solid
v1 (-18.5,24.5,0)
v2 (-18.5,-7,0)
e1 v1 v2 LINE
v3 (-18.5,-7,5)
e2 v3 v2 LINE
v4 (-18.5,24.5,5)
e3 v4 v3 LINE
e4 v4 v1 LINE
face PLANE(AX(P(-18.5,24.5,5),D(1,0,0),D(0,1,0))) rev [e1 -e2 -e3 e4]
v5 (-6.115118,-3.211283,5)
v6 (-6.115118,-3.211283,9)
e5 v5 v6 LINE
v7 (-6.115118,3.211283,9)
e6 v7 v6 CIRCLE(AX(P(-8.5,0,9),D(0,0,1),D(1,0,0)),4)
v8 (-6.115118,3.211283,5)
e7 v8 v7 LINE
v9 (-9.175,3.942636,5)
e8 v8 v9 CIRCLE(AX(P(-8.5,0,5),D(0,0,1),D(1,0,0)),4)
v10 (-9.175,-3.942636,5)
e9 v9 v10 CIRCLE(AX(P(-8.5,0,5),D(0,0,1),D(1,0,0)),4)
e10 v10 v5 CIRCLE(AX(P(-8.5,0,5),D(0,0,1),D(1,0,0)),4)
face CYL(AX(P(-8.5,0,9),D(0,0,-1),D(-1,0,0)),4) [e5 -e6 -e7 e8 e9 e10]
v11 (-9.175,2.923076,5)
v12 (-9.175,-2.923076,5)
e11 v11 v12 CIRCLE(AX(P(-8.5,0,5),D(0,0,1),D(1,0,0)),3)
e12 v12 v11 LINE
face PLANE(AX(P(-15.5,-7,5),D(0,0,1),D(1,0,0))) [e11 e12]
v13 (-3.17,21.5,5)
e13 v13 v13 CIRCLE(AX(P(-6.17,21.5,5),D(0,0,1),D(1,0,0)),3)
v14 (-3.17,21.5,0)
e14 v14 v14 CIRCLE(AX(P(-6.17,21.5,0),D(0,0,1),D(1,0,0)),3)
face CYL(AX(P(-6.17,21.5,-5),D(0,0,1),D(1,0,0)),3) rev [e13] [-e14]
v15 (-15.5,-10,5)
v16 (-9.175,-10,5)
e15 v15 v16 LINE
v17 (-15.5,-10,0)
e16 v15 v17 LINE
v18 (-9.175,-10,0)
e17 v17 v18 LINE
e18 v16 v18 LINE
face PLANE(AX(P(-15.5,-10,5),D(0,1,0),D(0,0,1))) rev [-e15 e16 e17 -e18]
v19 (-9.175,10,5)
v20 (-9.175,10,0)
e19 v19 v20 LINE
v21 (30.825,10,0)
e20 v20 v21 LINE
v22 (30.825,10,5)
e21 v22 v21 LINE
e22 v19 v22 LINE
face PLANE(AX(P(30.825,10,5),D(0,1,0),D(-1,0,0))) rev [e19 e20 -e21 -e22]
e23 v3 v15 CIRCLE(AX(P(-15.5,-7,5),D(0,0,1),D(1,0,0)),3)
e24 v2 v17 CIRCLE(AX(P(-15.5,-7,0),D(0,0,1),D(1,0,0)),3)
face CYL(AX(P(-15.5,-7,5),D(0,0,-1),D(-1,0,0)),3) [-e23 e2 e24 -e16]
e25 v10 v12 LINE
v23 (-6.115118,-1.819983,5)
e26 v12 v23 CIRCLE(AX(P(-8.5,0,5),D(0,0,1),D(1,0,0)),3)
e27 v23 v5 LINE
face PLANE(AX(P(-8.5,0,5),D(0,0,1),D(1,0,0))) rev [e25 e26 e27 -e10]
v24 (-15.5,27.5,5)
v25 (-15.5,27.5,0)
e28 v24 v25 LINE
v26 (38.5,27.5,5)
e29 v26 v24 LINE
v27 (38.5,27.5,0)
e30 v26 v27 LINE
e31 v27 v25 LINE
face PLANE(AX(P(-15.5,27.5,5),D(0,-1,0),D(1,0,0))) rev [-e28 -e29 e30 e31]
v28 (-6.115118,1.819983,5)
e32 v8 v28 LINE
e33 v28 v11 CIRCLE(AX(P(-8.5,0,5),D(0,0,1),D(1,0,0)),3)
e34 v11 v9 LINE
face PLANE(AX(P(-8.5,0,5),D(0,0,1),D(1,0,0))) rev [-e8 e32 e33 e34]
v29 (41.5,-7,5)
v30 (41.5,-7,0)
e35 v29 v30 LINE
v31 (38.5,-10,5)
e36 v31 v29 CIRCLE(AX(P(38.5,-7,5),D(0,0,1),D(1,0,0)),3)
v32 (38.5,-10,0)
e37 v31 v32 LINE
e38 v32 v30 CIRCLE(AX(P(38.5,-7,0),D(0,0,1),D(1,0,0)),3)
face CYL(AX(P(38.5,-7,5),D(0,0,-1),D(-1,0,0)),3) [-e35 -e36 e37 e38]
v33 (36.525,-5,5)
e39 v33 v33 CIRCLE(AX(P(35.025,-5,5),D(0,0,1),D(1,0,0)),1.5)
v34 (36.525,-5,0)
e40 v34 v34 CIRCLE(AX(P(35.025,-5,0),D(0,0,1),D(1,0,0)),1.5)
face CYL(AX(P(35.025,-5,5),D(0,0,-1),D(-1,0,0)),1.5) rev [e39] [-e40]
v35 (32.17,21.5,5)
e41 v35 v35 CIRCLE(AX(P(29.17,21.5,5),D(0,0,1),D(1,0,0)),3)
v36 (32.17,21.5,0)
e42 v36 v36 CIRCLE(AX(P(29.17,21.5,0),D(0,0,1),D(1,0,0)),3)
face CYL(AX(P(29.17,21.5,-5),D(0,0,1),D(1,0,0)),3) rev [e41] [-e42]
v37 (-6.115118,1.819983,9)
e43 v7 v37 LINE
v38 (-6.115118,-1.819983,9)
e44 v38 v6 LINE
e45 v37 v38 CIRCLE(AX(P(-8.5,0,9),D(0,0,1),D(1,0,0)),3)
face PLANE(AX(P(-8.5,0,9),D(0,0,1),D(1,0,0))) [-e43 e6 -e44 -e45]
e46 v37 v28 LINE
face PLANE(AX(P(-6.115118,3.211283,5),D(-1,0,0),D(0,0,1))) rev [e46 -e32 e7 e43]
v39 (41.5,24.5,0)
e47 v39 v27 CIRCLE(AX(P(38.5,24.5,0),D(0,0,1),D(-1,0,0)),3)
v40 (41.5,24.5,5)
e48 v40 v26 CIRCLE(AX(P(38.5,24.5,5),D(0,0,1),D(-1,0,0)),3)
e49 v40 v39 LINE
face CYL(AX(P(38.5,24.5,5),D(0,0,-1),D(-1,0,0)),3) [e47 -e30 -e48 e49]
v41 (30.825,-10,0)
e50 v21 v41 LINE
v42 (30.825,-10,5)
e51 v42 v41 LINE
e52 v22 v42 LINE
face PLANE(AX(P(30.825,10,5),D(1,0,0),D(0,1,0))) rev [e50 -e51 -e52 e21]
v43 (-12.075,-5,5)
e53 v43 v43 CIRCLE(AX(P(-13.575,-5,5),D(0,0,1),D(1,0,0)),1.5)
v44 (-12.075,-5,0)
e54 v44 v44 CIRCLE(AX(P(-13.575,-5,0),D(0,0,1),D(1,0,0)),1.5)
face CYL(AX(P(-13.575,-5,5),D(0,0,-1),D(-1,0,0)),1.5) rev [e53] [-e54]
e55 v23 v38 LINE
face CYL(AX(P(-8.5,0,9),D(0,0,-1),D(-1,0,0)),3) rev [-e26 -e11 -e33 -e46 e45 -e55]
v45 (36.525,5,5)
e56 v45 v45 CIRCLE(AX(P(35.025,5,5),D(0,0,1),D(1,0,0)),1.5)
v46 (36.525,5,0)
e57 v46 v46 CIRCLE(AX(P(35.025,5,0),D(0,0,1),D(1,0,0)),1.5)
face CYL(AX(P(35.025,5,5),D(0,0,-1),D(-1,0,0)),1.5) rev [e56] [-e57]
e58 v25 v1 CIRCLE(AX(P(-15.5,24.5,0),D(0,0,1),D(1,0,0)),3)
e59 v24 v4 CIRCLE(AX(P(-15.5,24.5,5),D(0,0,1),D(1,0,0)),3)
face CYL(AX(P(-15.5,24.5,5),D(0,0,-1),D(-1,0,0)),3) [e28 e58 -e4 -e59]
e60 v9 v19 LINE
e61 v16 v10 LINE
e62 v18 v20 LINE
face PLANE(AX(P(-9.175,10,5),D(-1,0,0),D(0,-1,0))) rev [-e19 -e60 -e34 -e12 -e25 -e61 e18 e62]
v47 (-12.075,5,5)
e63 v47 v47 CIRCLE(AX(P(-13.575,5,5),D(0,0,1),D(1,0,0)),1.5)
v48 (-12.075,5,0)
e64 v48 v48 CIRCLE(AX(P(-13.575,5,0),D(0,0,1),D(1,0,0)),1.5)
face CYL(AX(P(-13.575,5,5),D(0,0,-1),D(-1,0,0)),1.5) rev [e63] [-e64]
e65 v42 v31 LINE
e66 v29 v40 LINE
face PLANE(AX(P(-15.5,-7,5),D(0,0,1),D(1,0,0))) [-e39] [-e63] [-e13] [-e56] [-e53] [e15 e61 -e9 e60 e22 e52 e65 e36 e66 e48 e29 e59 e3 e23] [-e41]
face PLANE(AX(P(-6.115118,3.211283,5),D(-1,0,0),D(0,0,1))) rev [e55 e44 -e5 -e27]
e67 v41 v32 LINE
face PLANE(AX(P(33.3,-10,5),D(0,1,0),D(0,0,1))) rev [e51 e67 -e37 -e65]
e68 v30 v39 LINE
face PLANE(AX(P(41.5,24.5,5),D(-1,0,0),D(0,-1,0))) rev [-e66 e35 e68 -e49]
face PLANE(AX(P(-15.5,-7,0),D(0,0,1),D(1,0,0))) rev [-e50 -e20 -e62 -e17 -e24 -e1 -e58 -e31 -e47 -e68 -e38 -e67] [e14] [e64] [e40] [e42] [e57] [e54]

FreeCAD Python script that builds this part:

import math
import FreeCAD as App
import Part
import Sketcher

doc = App.newDocument("Part")
params = doc.addObject("Spreadsheet::Sheet", "Params")
for row, (alias, value) in enumerate([
    ("sketch1_diameter", "3 mm"),
    ("sketch1_radius", "3 mm"),
    ("sketch1_width", "54 mm"),
    ("sketch1_width2", "40 mm"),
    ("sketch1_height", "20 mm"),
    ("pad1_length", "5 mm"),
    ("sketch2_diameter", "6 mm"),
    ("pocket1_length", "10 mm"),
    ("sketch3_diameter", "8 mm"),
    ("sketch3_diameter2", "6 mm"),
    ("pad2_length", "4 mm"),
    ("sketch4_radius", "4 mm"),
    ("pocket2_length", "4 mm"),
], start=1):
    params.set(f"A{row}", alias)
    params.set(f"B{row}", "=" + value)
    params.setAlias(f"B{row}", alias)

body = doc.addObject("PartDesign::Body", "Body")

sketch1 = body.newObject("Sketcher::SketchObject", "Sketch")
sketch1.AttachmentSupport = (doc.getObject("XY_Plane"), [""])
sketch1.MapMode = "FlatFace"
sketch1.addGeometry([
    Part.LineSegment(App.Vector(38.5, 27.5, 0), App.Vector(-15.5, 27.5, 0)),
    Part.ArcOfCircle(Part.Circle(App.Vector(-15.5, 24.5, 0), App.Vector(0, 0, 1), 3), math.radians(90), math.radians(180)),
    Part.LineSegment(App.Vector(-18.5, 24.5, 0), App.Vector(-18.5, -7, 0)),
    Part.ArcOfCircle(Part.Circle(App.Vector(-15.5, -7, 0), App.Vector(0, 0, 1), 3), math.radians(180), math.radians(270)),
    Part.LineSegment(App.Vector(-15.5, -10, 0), App.Vector(-9.2, -10, 0)),
    Part.LineSegment(App.Vector(-9.2, -10, 0), App.Vector(-9.2, 10, 0)),
    Part.LineSegment(App.Vector(-9.2, 10, 0), App.Vector(30.8, 10, 0)),
    Part.LineSegment(App.Vector(30.8, 10, 0), App.Vector(30.8, -10, 0)),
    Part.LineSegment(App.Vector(30.8, -10, 0), App.Vector(38.5, -10, 0)),
    Part.ArcOfCircle(Part.Circle(App.Vector(38.5, -7, 0), App.Vector(0, 0, 1), 3), math.radians(-90), math.radians(0)),
    Part.LineSegment(App.Vector(41.5, -7, 0), App.Vector(41.5, 24.5, 0)),
    Part.ArcOfCircle(Part.Circle(App.Vector(38.5, 24.5, 0), App.Vector(0, 0, 1), 3), math.radians(0), math.radians(90)),
    Part.Circle(App.Vector(35, -5, 0), App.Vector(0, 0, 1), 1.5),
    Part.Circle(App.Vector(-13.6, -5, 0), App.Vector(0, 0, 1), 1.5),
    Part.Circle(App.Vector(35, 5, 0), App.Vector(0, 0, 1), 1.5),
    Part.Circle(App.Vector(-13.6, 5, 0), App.Vector(0, 0, 1), 1.5),
], False)
sketch1.addConstraint([
    Sketcher.Constraint("Tangent", 0, 2, 1, 1),
    Sketcher.Constraint("Tangent", 1, 2, 2, 1),
    Sketcher.Constraint("Tangent", 2, 2, 3, 1),
    Sketcher.Constraint("Tangent", 3, 2, 4, 1),
    Sketcher.Constraint("Coincident", 4, 2, 5, 1),
    Sketcher.Constraint("Coincident", 5, 2, 6, 1),
    Sketcher.Constraint("Coincident", 6, 2, 7, 1),
    Sketcher.Constraint("Coincident", 7, 2, 8, 1),
    Sketcher.Constraint("Tangent", 8, 2, 9, 1),
    Sketcher.Constraint("Tangent", 9, 2, 10, 1),
    Sketcher.Constraint("Tangent", 10, 2, 11, 1),
    Sketcher.Constraint("Tangent", 11, 2, 0, 1),
    Sketcher.Constraint("Horizontal", 0),
    Sketcher.Constraint("Vertical", 2),
    Sketcher.Constraint("Horizontal", 4),
    Sketcher.Constraint("Vertical", 5),
    Sketcher.Constraint("Horizontal", 6),
    Sketcher.Constraint("Vertical", 7),
    Sketcher.Constraint("Horizontal", 8),
    Sketcher.Constraint("Vertical", 10),
    Sketcher.Constraint("Equal", 1, 3),
    Sketcher.Constraint("Equal", 3, 9),
    Sketcher.Constraint("Equal", 9, 11),
    Sketcher.Constraint("Equal", 12, 13),
    Sketcher.Constraint("Equal", 13, 14),
    Sketcher.Constraint("Equal", 14, 15),
    Sketcher.Constraint("Symmetric", 12, 3, 14, 3, -1),
    Sketcher.Constraint("Symmetric", 13, 3, 15, 3, -1),
    Sketcher.Constraint("Horizontal", 3, 3, 9, 3),
    Sketcher.Constraint("Horizontal", 12, 3, 13, 3),
    Sketcher.Constraint("Diameter", 12, 3.0),
    Sketcher.Constraint("Radius", 1, 3.0),
    Sketcher.Constraint("DistanceX", 0, 2, 0, 1, 54.0),
    Sketcher.Constraint("DistanceX", 6, 1, 6, 2, 40.0),
    Sketcher.Constraint("DistanceY", 5, 1, 5, 2, 20.0),
    Sketcher.Constraint("DistanceY", 2, 2, 2, 1, 31.5),
    Sketcher.Constraint("DistanceY", 3, 3, -1, 1, 7.0),
    Sketcher.Constraint("DistanceY", 12, 3, -1, 1, 5.0),
    Sketcher.Constraint("DistanceX", 1, 3, -1, 1, 15.5),
    Sketcher.Constraint("DistanceX", 13, 3, 12, 3, 48.6),
    Sketcher.Constraint("DistanceX", 13, 3, 4, 2, 4.4),
    Sketcher.Constraint("DistanceX", 4, 1, 4, 2, 6.325),
])
sketch1.setExpression("Constraints[30]", "Params.sketch1_diameter")
sketch1.setExpression("Constraints[31]", "Params.sketch1_radius")
sketch1.setExpression("Constraints[32]", "Params.sketch1_width")
sketch1.setExpression("Constraints[33]", "Params.sketch1_width2")
sketch1.setExpression("Constraints[34]", "Params.sketch1_height")
pad1 = body.newObject("PartDesign::Pad", "Pad")
pad1.Profile = sketch1
pad1.setExpression("Length", "Params.pad1_length")

sketch2 = body.newObject("Sketcher::SketchObject", "Sketch001")
sketch2.AttachmentSupport = (doc.getObject("XY_Plane"), [""])
sketch2.MapMode = "FlatFace"
sketch2.AttachmentOffset = App.Placement(App.Vector(0, 0, 5), App.Rotation())
sketch2.addGeometry([
    Part.Circle(App.Vector(-6.2, 21.5, 0), App.Vector(0, 0, 1), 3),
    Part.Circle(App.Vector(29.2, 21.5, 0), App.Vector(0, 0, 1), 3),
], False)
sketch2.addConstraint([
    Sketcher.Constraint("Equal", 0, 1),
    Sketcher.Constraint("Horizontal", 0, 3, 1, 3),
    Sketcher.Constraint("Diameter", 0, 6.0),
    Sketcher.Constraint("DistanceY", -1, 1, 0, 3, 21.5),
    Sketcher.Constraint("DistanceX", 0, 3, -1, 1, 6.17),
    Sketcher.Constraint("DistanceX", -1, 1, 1, 3, 29.17),
])
sketch2.setExpression("Constraints[2]", "Params.sketch2_diameter")
pocket1 = body.newObject("PartDesign::Pocket", "Pocket")
pocket1.Profile = sketch2
pocket1.setExpression("Length", "Params.pocket1_length")

sketch3 = body.newObject("Sketcher::SketchObject", "Sketch002")
sketch3.AttachmentSupport = (doc.getObject("XY_Plane"), [""])
sketch3.MapMode = "FlatFace"
sketch3.AttachmentOffset = App.Placement(App.Vector(0, 0, 5), App.Rotation())
sketch3.addGeometry([
    Part.Circle(App.Vector(-8.5, 0, 0), App.Vector(0, 0, 1), 4),
    Part.Circle(App.Vector(-8.5, 0, 0), App.Vector(0, 0, 1), 3),
], False)
sketch3.addConstraint([
    Sketcher.Constraint("Coincident", 1, 3, 0, 3),
    Sketcher.Constraint("PointOnObject", 0, 3, -1),
    Sketcher.Constraint("Diameter", 0, 8.0),
    Sketcher.Constraint("Diameter", 1, 6.0),
    Sketcher.Constraint("DistanceX", 0, 3, -1, 1, 8.5),
])
sketch3.setExpression("Constraints[2]", "Params.sketch3_diameter")
sketch3.setExpression("Constraints[3]", "Params.sketch3_diameter2")
pad2 = body.newObject("PartDesign::Pad", "Pad001")
pad2.Profile = sketch3
pad2.setExpression("Length", "Params.pad2_length")

sketch4 = body.newObject("Sketcher::SketchObject", "Sketch003")
sketch4.AttachmentSupport = (doc.getObject("XY_Plane"), [""])
sketch4.MapMode = "FlatFace"
sketch4.AttachmentOffset = App.Placement(App.Vector(0, 0, 5), App.Rotation())
sketch4.addGeometry([
    Part.LineSegment(App.Vector(-6.1, 3.2, 0), App.Vector(-6.1, -3.2, 0)),
    Part.ArcOfCircle(Part.Circle(App.Vector(-8.5, 0, 0), App.Vector(0, 0, 1), 4), math.radians(-53), math.radians(53)),
], False)
sketch4.addConstraint([
    Sketcher.Constraint("Coincident", 0, 1, 1, 2),
    Sketcher.Constraint("Coincident", 1, 1, 0, 2),
    Sketcher.Constraint("Vertical", 0),
    Sketcher.Constraint("PointOnObject", 1, 3, -1),
    Sketcher.Constraint("Radius", 1, 4.0),
    Sketcher.Constraint("DistanceX", 1, 3, -1, 1, 8.5),
    Sketcher.Constraint("DistanceY", 0, 2, 0, 1, 6.422566),
])
sketch4.setExpression("Constraints[4]", "Params.sketch4_radius")
pocket2 = body.newObject("PartDesign::Pocket", "Pocket001")
pocket2.Profile = sketch4
pocket2.setExpression("Length", "Params.pocket2_length")
pocket2.Reversed = True

doc.recompute()
